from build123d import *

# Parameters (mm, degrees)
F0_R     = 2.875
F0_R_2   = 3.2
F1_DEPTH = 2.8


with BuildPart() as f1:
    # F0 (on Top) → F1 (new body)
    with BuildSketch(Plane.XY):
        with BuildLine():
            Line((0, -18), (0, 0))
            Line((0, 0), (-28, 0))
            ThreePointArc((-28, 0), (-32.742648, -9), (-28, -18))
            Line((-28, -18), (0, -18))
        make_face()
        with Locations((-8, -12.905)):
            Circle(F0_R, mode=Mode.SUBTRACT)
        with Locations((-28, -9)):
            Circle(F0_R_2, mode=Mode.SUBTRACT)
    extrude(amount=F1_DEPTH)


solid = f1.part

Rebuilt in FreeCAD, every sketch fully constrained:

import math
import FreeCAD as App
import Part
import Sketcher

V = App.Vector

doc = App.newDocument("Part")
body = doc.addObject("PartDesign::Body", "Body")

sketch1 = body.newObject("Sketcher::SketchObject", "Sketch")
sketch1.AttachmentSupport = (doc.getObject("XY_Plane"), [""])
sketch1.MapMode = "FlatFace"
sketch1.addGeometry(Part.LineSegment(V(0, -18, 0), V(0, 0, 0)), False)
sketch1.addGeometry(Part.LineSegment(V(0, 0, 0), V(-28, 0, 0)), False)
sketch1.addGeometry(Part.ArcOfCircle(Part.Circle(V(-21.831791, -9, 0), V(0, 0, 1), 10.910857), math.radians(124.425047), math.radians(235.574953)), False)
sketch1.addGeometry(Part.LineSegment(V(-28, -18, 0), V(0, -18, 0)), False)
sketch1.addGeometry(Part.Circle(V(-8, -12.905, 0), V(0, 0, 1), 2.875), False)
sketch1.addGeometry(Part.Circle(V(-28, -9, 0), V(0, 0, 1), 3.2), False)
sketch1.addConstraint(Sketcher.Constraint("Coincident", 0, 2, 1, 1))
sketch1.addConstraint(Sketcher.Constraint("Coincident", 1, 2, 2, 1))
sketch1.addConstraint(Sketcher.Constraint("Coincident", 2, 2, 3, 1))
sketch1.addConstraint(Sketcher.Constraint("Coincident", 3, 2, 0, 1))
sketch1.addConstraint(Sketcher.Constraint("Vertical", 0))
sketch1.addConstraint(Sketcher.Constraint("Horizontal", 1))
sketch1.addConstraint(Sketcher.Constraint("Horizontal", 3))
sketch1.addConstraint(Sketcher.Constraint("Coincident", 0, 2, -1, 1))
sketch1.addConstraint(Sketcher.Constraint("Horizontal", 2, 3, 5, 3))
sketch1.addConstraint(Sketcher.Constraint("Vertical", 5, 3, 1, 2))
sketch1.addConstraint(Sketcher.Constraint("Vertical", 1, 2, 2, 2))
sketch1.addConstraint(Sketcher.Constraint("Diameter", 5, 6.4))
sketch1.addConstraint(Sketcher.Constraint("Diameter", 4, 5.75))
sketch1.addConstraint(Sketcher.Constraint("DistanceX", 1, 2, 1, 1, 28.0))
sketch1.addConstraint(Sketcher.Constraint("DistanceY", 0, 1, 0, 2, 18.0))
sketch1.addConstraint(Sketcher.Constraint("DistanceX", 4, 3, -1, 1, 8.0))
sketch1.addConstraint(Sketcher.Constraint("DistanceY", 4, 3, -1, 1, 12.905))
sketch1.addConstraint(Sketcher.Constraint("Radius", 2, 10.910857))
pad1 = body.newObject("PartDesign::Pad", "Pad")
pad1.Profile = sketch1
pad1.Length = 2.8

doc.recompute()
